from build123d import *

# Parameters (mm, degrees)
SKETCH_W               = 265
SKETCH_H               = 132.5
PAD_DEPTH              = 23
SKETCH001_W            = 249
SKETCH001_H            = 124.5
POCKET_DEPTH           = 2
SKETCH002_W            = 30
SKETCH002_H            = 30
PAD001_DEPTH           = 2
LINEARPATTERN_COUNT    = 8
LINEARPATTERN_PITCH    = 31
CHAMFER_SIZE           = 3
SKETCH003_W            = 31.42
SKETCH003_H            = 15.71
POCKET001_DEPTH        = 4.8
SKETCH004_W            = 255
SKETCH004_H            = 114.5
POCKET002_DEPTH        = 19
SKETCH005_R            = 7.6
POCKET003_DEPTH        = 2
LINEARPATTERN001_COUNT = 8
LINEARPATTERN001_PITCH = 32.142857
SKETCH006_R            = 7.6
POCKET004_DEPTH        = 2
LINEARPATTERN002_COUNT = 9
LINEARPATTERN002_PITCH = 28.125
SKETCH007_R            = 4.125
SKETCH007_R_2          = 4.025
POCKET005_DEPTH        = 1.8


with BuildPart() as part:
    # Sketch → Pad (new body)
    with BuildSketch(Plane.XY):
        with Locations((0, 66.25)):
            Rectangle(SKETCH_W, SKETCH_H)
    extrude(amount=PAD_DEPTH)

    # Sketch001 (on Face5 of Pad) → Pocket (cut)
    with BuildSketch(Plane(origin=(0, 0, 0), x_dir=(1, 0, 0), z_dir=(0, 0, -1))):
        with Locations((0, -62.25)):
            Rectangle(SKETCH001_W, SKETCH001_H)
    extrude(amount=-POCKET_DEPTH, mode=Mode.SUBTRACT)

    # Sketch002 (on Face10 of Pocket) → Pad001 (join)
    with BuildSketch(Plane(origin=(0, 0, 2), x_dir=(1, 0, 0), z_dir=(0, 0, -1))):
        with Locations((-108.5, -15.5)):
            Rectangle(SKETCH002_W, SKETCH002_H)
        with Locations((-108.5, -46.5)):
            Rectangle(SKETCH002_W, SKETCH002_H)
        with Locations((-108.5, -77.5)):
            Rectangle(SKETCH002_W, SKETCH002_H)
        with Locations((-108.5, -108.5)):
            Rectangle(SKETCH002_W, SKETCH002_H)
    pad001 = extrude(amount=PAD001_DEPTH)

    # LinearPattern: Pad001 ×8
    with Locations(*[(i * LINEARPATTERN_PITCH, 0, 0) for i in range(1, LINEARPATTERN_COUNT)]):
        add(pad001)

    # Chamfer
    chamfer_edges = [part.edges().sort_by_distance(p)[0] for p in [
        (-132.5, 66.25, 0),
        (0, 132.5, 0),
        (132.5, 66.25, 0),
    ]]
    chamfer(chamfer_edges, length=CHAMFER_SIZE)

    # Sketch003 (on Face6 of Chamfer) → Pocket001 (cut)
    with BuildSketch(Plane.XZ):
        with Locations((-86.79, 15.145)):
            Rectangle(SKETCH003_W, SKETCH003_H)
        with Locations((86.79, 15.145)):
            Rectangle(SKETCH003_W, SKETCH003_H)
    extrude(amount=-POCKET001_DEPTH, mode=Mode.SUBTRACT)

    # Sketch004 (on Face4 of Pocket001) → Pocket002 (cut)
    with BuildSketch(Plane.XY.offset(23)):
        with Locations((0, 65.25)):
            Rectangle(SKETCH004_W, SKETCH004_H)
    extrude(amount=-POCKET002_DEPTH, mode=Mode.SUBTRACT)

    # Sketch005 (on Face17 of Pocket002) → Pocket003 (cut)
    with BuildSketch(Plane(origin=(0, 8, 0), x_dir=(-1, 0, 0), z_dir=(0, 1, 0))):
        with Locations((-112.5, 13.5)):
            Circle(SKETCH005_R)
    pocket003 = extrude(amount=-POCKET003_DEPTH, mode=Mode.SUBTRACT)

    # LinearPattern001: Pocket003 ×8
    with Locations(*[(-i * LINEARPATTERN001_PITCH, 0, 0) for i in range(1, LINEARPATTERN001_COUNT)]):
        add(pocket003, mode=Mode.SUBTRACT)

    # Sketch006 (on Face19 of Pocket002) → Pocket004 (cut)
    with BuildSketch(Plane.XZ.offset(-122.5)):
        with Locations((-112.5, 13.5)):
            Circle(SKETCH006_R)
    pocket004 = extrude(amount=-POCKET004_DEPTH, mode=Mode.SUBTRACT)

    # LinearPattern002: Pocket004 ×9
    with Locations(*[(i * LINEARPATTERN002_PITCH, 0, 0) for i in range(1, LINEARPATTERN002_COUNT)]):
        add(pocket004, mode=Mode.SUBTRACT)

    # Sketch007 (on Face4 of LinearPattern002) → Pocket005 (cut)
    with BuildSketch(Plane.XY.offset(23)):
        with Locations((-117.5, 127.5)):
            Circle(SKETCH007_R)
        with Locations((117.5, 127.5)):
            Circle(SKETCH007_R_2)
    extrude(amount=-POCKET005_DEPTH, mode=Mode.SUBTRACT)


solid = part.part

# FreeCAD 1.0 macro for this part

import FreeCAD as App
import Part
import Sketcher
from FreeCAD import Vector


def edges_at(feature, points):
    """Names of the edges that pass closest to the given points."""
    edges = feature.Shape.Edges
    near = lambda p: min(range(len(edges)), key=lambda i: edges[i].distToShape(Part.Vertex(*p))[0])
    return sorted({f"Edge{near(p) + 1}" for p in points})

doc = App.newDocument("Part")
body = doc.addObject("PartDesign::Body", "Body")

sketch1 = body.newObject("Sketcher::SketchObject", "Sketch")
sketch1.AttachmentSupport = (doc.getObject("XY_Plane"), [""])
sketch1.MapMode = "FlatFace"
sketch1.addGeometry([
    Part.LineSegment(Vector(-132.5, 132.5, 0), Vector(-132.5, 0, 0)),
    Part.LineSegment(Vector(-132.5, 0, 0), Vector(132.5, 0, 0)),
    Part.LineSegment(Vector(132.5, 0, 0), Vector(132.5, 132.5, 0)),
    Part.LineSegment(Vector(132.5, 132.5, 0), Vector(-132.5, 132.5, 0)),
], False)
sketch1.addConstraint([
    Sketcher.Constraint("Coincident", 0, 2, 1, 1),
    Sketcher.Constraint("Coincident", 1, 2, 2, 1),
    Sketcher.Constraint("Coincident", 2, 2, 3, 1),
    Sketcher.Constraint("Coincident", 3, 2, 0, 1),
    Sketcher.Constraint("Vertical", 0),
    Sketcher.Constraint("Horizontal", 1),
    Sketcher.Constraint("Vertical", 2),
    Sketcher.Constraint("Horizontal", 3),
    Sketcher.Constraint("Symmetric", 0, 2, 1, 2, -1, 1),
    Sketcher.Constraint("DistanceX", 1, 1, 1, 2, 265.0),
    Sketcher.Constraint("DistanceY", 0, 2, 0, 1, 132.5),
])
pad1 = body.newObject("PartDesign::Pad", "Pad")
pad1.Profile = sketch1
pad1.Length = 23

sketch2 = body.newObject("Sketcher::SketchObject", "Sketch001")
sketch2.AttachmentSupport = (doc.getObject("XY_Plane"), [""])
sketch2.MapMode = "FlatFace"
sketch2.addGeometry([
    Part.LineSegment(Vector(-124.5, 0, 0), Vector(-124.5, 124.5, 0)),
    Part.LineSegment(Vector(-124.5, 124.5, 0), Vector(124.5, 124.5, 0)),
    Part.LineSegment(Vector(124.5, 124.5, 0), Vector(124.5, 0, 0)),
    Part.LineSegment(Vector(124.5, 0, 0), Vector(-124.5, 0, 0)),
], False)
sketch2.addConstraint([
    Sketcher.Constraint("Coincident", 0, 2, 1, 1),
    Sketcher.Constraint("Coincident", 1, 2, 2, 1),
    Sketcher.Constraint("Coincident", 2, 2, 3, 1),
    Sketcher.Constraint("Coincident", 3, 2, 0, 1),
    Sketcher.Constraint("Vertical", 0),
    Sketcher.Constraint("Horizontal", 1),
    Sketcher.Constraint("Vertical", 2),
    Sketcher.Constraint("Horizontal", 3),
    Sketcher.Constraint("Symmetric", 2, 2, 3, 2, -1, 1),
    Sketcher.Constraint("DistanceX", 1, 1, 1, 2, 249.0),
    Sketcher.Constraint("DistanceY", 0, 1, 0, 2, 124.5),
])
pocket1 = body.newObject("PartDesign::Pocket", "Pocket")
pocket1.Profile = sketch2
pocket1.Length = 2
pocket1.Reversed = True

sketch3 = body.newObject("Sketcher::SketchObject", "Sketch002")
sketch3.AttachmentSupport = (doc.getObject("XY_Plane"), [""])
sketch3.MapMode = "FlatFace"
sketch3.AttachmentOffset = App.Placement(Vector(0, 0, 2), App.Rotation())
sketch3.addGeometry([
    Part.LineSegment(Vector(-123.5, 0.5, 0), Vector(-123.5, 30.5, 0)),
    Part.LineSegment(Vector(-123.5, 30.5, 0), Vector(-93.5, 30.5, 0)),
    Part.LineSegment(Vector(-93.5, 30.5, 0), Vector(-93.5, 0.5, 0)),
    Part.LineSegment(Vector(-93.5, 0.5, 0), Vector(-123.5, 0.5, 0)),
    Part.LineSegment(Vector(-123.5, 31.5, 0), Vector(-123.5, 61.5, 0)),
    Part.LineSegment(Vector(-123.5, 61.5, 0), Vector(-93.5, 61.5, 0)),
    Part.LineSegment(Vector(-93.5, 61.5, 0), Vector(-93.5, 31.5, 0)),
    Part.LineSegment(Vector(-93.5, 31.5, 0), Vector(-123.5, 31.5, 0)),
    Part.LineSegment(Vector(-123.5, 62.5, 0), Vector(-123.5, 92.5, 0)),
    Part.LineSegment(Vector(-123.5, 92.5, 0), Vector(-93.5, 92.5, 0)),
    Part.LineSegment(Vector(-93.5, 92.5, 0), Vector(-93.5, 62.5, 0)),
    Part.LineSegment(Vector(-93.5, 62.5, 0), Vector(-123.5, 62.5, 0)),
    Part.LineSegment(Vector(-123.5, 93.5, 0), Vector(-123.5, 123.5, 0)),
    Part.LineSegment(Vector(-123.5, 123.5, 0), Vector(-93.5, 123.5, 0)),
    Part.LineSegment(Vector(-93.5, 123.5, 0), Vector(-93.5, 93.5, 0)),
    Part.LineSegment(Vector(-93.5, 93.5, 0), Vector(-123.5, 93.5, 0)),
], False)
sketch3.addConstraint([
    Sketcher.Constraint("Coincident", 0, 2, 1, 1),
    Sketcher.Constraint("Coincident", 1, 2, 2, 1),
    Sketcher.Constraint("Coincident", 2, 2, 3, 1),
    Sketcher.Constraint("Coincident", 3, 2, 0, 1),
    Sketcher.Constraint("Coincident", 4, 2, 5, 1),
    Sketcher.Constraint("Coincident", 5, 2, 6, 1),
    Sketcher.Constraint("Coincident", 6, 2, 7, 1),
    Sketcher.Constraint("Coincident", 7, 2, 4, 1),
    Sketcher.Constraint("Coincident", 8, 2, 9, 1),
    Sketcher.Constraint("Coincident", 9, 2, 10, 1),
    Sketcher.Constraint("Coincident", 10, 2, 11, 1),
    Sketcher.Constraint("Coincident", 11, 2, 8, 1),
    Sketcher.Constraint("Coincident", 12, 2, 13, 1),
    Sketcher.Constraint("Coincident", 13, 2, 14, 1),
    Sketcher.Constraint("Coincident", 14, 2, 15, 1),
    Sketcher.Constraint("Coincident", 15, 2, 12, 1),
    Sketcher.Constraint("Vertical", 0),
    Sketcher.Constraint("Horizontal", 1),
    Sketcher.Constraint("Vertical", 2),
    Sketcher.Constraint("Horizontal", 3),
    Sketcher.Constraint("Vertical", 4),
    Sketcher.Constraint("Horizontal", 5),
    Sketcher.Constraint("Vertical", 6),
    Sketcher.Constraint("Horizontal", 7),
    Sketcher.Constraint("Vertical", 8),
    Sketcher.Constraint("Horizontal", 9),
    Sketcher.Constraint("Vertical", 10),
    Sketcher.Constraint("Horizontal", 11),
    Sketcher.Constraint("Vertical", 12),
    Sketcher.Constraint("Horizontal", 13),
    Sketcher.Constraint("Vertical", 14),
    Sketcher.Constraint("Horizontal", 15),
    Sketcher.Constraint("Vertical", 3, 2, 4, 2),
    Sketcher.Constraint("Vertical", 2, 2, 5, 2),
    Sketcher.Constraint("Vertical", 7, 2, 8, 2),
    Sketcher.Constraint("Vertical", 6, 2, 9, 2),
    Sketcher.Constraint("Vertical", 11, 2, 12, 2),
    Sketcher.Constraint("Vertical", 10, 2, 13, 2),
    Sketcher.Constraint("Equal", 15, 0),
    Sketcher.Constraint("Equal", 2, 4),
    Sketcher.Constraint("Equal", 6, 8),
    Sketcher.Constraint("Equal", 10, 12),
    Sketcher.Constraint("DistanceX", 1, 1, 1, 2, 30.0),
    Sketcher.Constraint("DistanceY", 0, 2, 4, 2, 31.0),
    Sketcher.Constraint("DistanceY", 4, 2, 8, 2, 31.0),
    Sketcher.Constraint("DistanceY", 8, 2, 12, 2, 31.0),
    Sketcher.Constraint("DistanceX", 0, 2, -1, 1, 123.5),
    Sketcher.Constraint("DistanceY", -1, 1, 0, 2, 30.5),
])
pad2 = body.newObject("PartDesign::Pad", "Pad001")
pad2.Profile = sketch3
pad2.Length = 2
pad2.Reversed = True
doc.recompute()

linearpattern = body.newObject("PartDesign::LinearPattern", "LinearPattern")
linearpattern.Originals = [pad2]
linearpattern.Direction = (doc.getObject("X_Axis"), [""])
linearpattern.Mode = "offset"
linearpattern.Offset = 31
linearpattern.Occurrences = 8
body.Tip = linearpattern
doc.recompute()

chamfer = body.newObject("PartDesign::Chamfer", "Chamfer")
chamfer.Base = (linearpattern, edges_at(linearpattern, [(-132.5, 66.25, 0), (0, 132.5, 0), (132.5, 66.25, 0)]))
chamfer.Size = 3

sketch4 = body.newObject("Sketcher::SketchObject", "Sketch003")
sketch4.AttachmentSupport = (doc.getObject("XZ_Plane"), [""])
sketch4.MapMode = "FlatFace"
sketch4.addGeometry([
    Part.LineSegment(Vector(-102.5, 23, 0), Vector(-102.5, 7.29, 0)),
    Part.LineSegment(Vector(-102.5, 7.29, 0), Vector(-71.08, 7.29, 0)),
    Part.LineSegment(Vector(-71.08, 7.29, 0), Vector(-71.08, 23, 0)),
    Part.LineSegment(Vector(-71.08, 23, 0), Vector(-102.5, 23, 0)),
    Part.LineSegment(Vector(71.08, 23, 0), Vector(71.08, 7.29, 0)),
    Part.LineSegment(Vector(71.08, 7.29, 0), Vector(102.5, 7.29, 0)),
    Part.LineSegment(Vector(102.5, 7.29, 0), Vector(102.5, 23, 0)),
    Part.LineSegment(Vector(102.5, 23, 0), Vector(71.08, 23, 0)),
], False)
sketch4.addConstraint([
    Sketcher.Constraint("Coincident", 0, 2, 1, 1),
    Sketcher.Constraint("Coincident", 1, 2, 2, 1),
    Sketcher.Constraint("Coincident", 2, 2, 3, 1),
    Sketcher.Constraint("Coincident", 3, 2, 0, 1),
    Sketcher.Constraint("Coincident", 4, 2, 5, 1),
    Sketcher.Constraint("Coincident", 5, 2, 6, 1),
    Sketcher.Constraint("Coincident", 6, 2, 7, 1),
    Sketcher.Constraint("Coincident", 7, 2, 4, 1),
    Sketcher.Constraint("Vertical", 0),
    Sketcher.Constraint("Horizontal", 1),
    Sketcher.Constraint("Vertical", 2),
    Sketcher.Constraint("Horizontal", 3),
    Sketcher.Constraint("Vertical", 4),
    Sketcher.Constraint("Horizontal", 5),
    Sketcher.Constraint("Vertical", 6),
    Sketcher.Constraint("Horizontal", 7),
    Sketcher.Constraint("Symmetric", 1, 2, 4, 2, -2),
    Sketcher.Constraint("Symmetric", 3, 2, 6, 2, -2),
    Sketcher.Constraint("DistanceY", -1, 1, 2, 2, 23.0),
    Sketcher.Constraint("DistanceX", 0, 2, 5, 2, 205.0),
    Sketcher.Constraint("DistanceX", 1, 1, 1, 2, 31.42),
    Sketcher.Constraint("DistanceY", 0, 2, 0, 1, 15.71),
])
pocket2 = body.newObject("PartDesign::Pocket", "Pocket001")
pocket2.Profile = sketch4
pocket2.Length = 4.8

sketch5 = body.newObject("Sketcher::SketchObject", "Sketch004")
sketch5.AttachmentSupport = (doc.getObject("XY_Plane"), [""])
sketch5.MapMode = "FlatFace"
sketch5.AttachmentOffset = App.Placement(Vector(0, 0, 23), App.Rotation())
sketch5.addGeometry([
    Part.LineSegment(Vector(-127.5, 122.5, 0), Vector(-127.5, 8, 0)),
    Part.LineSegment(Vector(-127.5, 8, 0), Vector(127.5, 8, 0)),
    Part.LineSegment(Vector(127.5, 8, 0), Vector(127.5, 122.5, 0)),
    Part.LineSegment(Vector(127.5, 122.5, 0), Vector(-127.5, 122.5, 0)),
], False)
sketch5.addConstraint([
    Sketcher.Constraint("Coincident", 0, 2, 1, 1),
    Sketcher.Constraint("Coincident", 1, 2, 2, 1),
    Sketcher.Constraint("Coincident", 2, 2, 3, 1),
    Sketcher.Constraint("Coincident", 3, 2, 0, 1),
    Sketcher.Constraint("Vertical", 0),
    Sketcher.Constraint("Horizontal", 1),
    Sketcher.Constraint("Vertical", 2),
    Sketcher.Constraint("Horizontal", 3),
    Sketcher.Constraint("DistanceX", 1, 1, 1, 2, 255.0),
    Sketcher.Constraint("DistanceY", 0, 2, 0, 1, 114.5),
    Sketcher.Constraint("DistanceY", -1, 1, 0, 2, 8.0),
    Sketcher.Constraint("DistanceX", 0, 2, -1, 1, 127.5),
])
pocket3 = body.newObject("PartDesign::Pocket", "Pocket002")
pocket3.Profile = sketch5
pocket3.Length = 19

sketch6 = body.newObject("Sketcher::SketchObject", "Sketch005")
sketch6.AttachmentSupport = (doc.getObject("XZ_Plane"), [""])
sketch6.MapMode = "FlatFace"
sketch6.AttachmentOffset = App.Placement(Vector(0, 0, -8), App.Rotation())
sketch6.addGeometry(Part.Circle(Vector(112.5, 13.5, 0), Vector(0, 0, 1), 7.6), False)
sketch6.addConstraint([
    Sketcher.Constraint("Diameter", 0, 15.2),
    Sketcher.Constraint("DistanceX", -1, 1, 0, 3, 112.5),
    Sketcher.Constraint("DistanceY", -1, 1, 0, 3, 13.5),
])
pocket4 = body.newObject("PartDesign::Pocket", "Pocket003")
pocket4.Profile = sketch6
pocket4.Length = 2
pocket4.Reversed = True
doc.recompute()

linearpattern2 = body.newObject("PartDesign::LinearPattern", "LinearPattern001")
linearpattern2.Originals = [pocket4]
linearpattern2.Direction = (doc.getObject("X_Axis"), [""])
linearpattern2.Mode = "offset"
linearpattern2.Offset = 32.142857
linearpattern2.Occurrences = 8
linearpattern2.Reversed = True
body.Tip = linearpattern2

sketch7 = body.newObject("Sketcher::SketchObject", "Sketch006")
sketch7.AttachmentSupport = (doc.getObject("XZ_Plane"), [""])
sketch7.MapMode = "FlatFace"
sketch7.AttachmentOffset = App.Placement(Vector(0, 0, -122.5), App.Rotation())
sketch7.addGeometry(Part.Circle(Vector(-112.5, 13.5, 0), Vector(0, 0, 1), 7.6), False)
sketch7.addConstraint([
    Sketcher.Constraint("Diameter", 0, 15.2),
    Sketcher.Constraint("DistanceX", 0, 3, -1, 1, 112.5),
    Sketcher.Constraint("DistanceY", -1, 1, 0, 3, 13.5),
])
pocket5 = body.newObject("PartDesign::Pocket", "Pocket004")
pocket5.Profile = sketch7
pocket5.Length = 2
doc.recompute()

linearpattern3 = body.newObject("PartDesign::LinearPattern", "LinearPattern002")
linearpattern3.Originals = [pocket5]
linearpattern3.Direction = (doc.getObject("X_Axis"), [""])
linearpattern3.Mode = "offset"
linearpattern3.Offset = 28.125
linearpattern3.Occurrences = 9
body.Tip = linearpattern3

sketch8 = body.newObject("Sketcher::SketchObject", "Sketch007")
sketch8.AttachmentSupport = (doc.getObject("XY_Plane"), [""])
sketch8.MapMode = "FlatFace"
sketch8.AttachmentOffset = App.Placement(Vector(0, 0, 23), App.Rotation())
sketch8.addGeometry([
    Part.Circle(Vector(-117.5, 127.5, 0), Vector(0, 0, 1), 4.125),
    Part.Circle(Vector(117.5, 127.5, 0), Vector(0, 0, 1), 4.025),
], False)
sketch8.addConstraint([
    Sketcher.Constraint("Symmetric", 0, 3, 1, 3, -2),
    Sketcher.Constraint("Diameter", 0, 8.25),
    Sketcher.Constraint("Diameter", 1, 8.05),
    Sketcher.Constraint("DistanceX", 0, 3, 1, 3, 235.0),
    Sketcher.Constraint("DistanceY", -1, 1, 0, 3, 127.5),
])
pocket6 = body.newObject("PartDesign::Pocket", "Pocket005")
pocket6.Profile = sketch8
pocket6.Length = 1.8

doc.recompute()
